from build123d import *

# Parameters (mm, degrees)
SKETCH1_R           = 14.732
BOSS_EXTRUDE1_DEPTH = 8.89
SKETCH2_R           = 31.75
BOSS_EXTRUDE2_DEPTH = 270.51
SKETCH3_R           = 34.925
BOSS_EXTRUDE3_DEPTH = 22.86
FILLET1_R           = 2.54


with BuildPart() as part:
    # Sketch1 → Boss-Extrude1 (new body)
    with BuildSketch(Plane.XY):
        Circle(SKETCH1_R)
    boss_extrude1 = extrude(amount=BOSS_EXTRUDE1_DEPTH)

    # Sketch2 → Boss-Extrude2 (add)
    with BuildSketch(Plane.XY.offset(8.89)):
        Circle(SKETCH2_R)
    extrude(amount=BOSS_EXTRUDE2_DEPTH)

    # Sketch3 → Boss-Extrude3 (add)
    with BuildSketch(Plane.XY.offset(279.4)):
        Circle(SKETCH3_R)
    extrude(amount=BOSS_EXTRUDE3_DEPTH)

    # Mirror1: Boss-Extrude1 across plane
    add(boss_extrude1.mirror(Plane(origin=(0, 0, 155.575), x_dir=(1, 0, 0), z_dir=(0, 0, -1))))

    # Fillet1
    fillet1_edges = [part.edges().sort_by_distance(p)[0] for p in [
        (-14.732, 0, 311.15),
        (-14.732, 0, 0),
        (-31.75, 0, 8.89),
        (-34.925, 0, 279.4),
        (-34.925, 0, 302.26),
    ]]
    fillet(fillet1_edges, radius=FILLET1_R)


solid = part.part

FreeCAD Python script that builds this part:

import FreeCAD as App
import Part
import Sketcher
Q = App.Units.Quantity


def edges_at(feature, points):
    """Names of the edges that pass closest to the given points."""
    edges = feature.Shape.Edges
    near = lambda p: min(range(len(edges)), key=lambda i: edges[i].distToShape(Part.Vertex(*p))[0])
    return sorted({f"Edge{near(p) + 1}" for p in points})

doc = App.newDocument("Part")
params = doc.addObject("Spreadsheet::Sheet", "Params")
for row, (alias, value) in enumerate([
    ("sketch1_diameter", "1.16 in"),
    ("pad1_length", "0.35 in"),
    ("sketch2_diameter", "2.5 in"),
    ("pad2_length", "10.65 in"),
    ("sketch3_diameter", "2.75 in"),
    ("pad3_length", "0.9 in"),
    ("fillet_radius", "0.1 in"),
], start=1):
    params.set(f"A{row}", alias)
    params.set(f"B{row}", "=" + value)
    params.setAlias(f"B{row}", alias)

body = doc.addObject("PartDesign::Body", "Body")

# Sketch on XY plane
sketch1 = body.newObject("Sketcher::SketchObject", "Sketch")
sketch1.AttachmentSupport = (doc.getObject("XY_Plane"), [""])
sketch1.MapMode = "FlatFace"
sketch1.addGeometry(Part.Circle(App.Vector(0, 0, 0), App.Vector(0, 0, 1), 15), False)
sketch1.addConstraint([
    Sketcher.Constraint("Coincident", 0, 3, -1, 1),
    Sketcher.Constraint("Diameter", 0, Q("1.16 in")),
])
sketch1.setExpression("Constraints[1]", "Params.sketch1_diameter")
pad1 = body.newObject("PartDesign::Pad", "Pad")
pad1.Profile = sketch1
pad1.setExpression("Length", "Params.pad1_length")

# Sketch on XY plane
sketch2 = body.newObject("Sketcher::SketchObject", "Sketch001")
sketch2.AttachmentSupport = (doc.getObject("XY_Plane"), [""])
sketch2.MapMode = "FlatFace"
sketch2.AttachmentOffset = App.Placement(App.Vector(0, 0, 0.35 * 25.4), App.Rotation())
sketch2.addGeometry(Part.Circle(App.Vector(0, 0, 0), App.Vector(0, 0, 1), 32), False)
sketch2.addConstraint([
    Sketcher.Constraint("Coincident", 0, 3, -1, 1),
    Sketcher.Constraint("Diameter", 0, Q("2.5 in")),
])
sketch2.setExpression("Constraints[1]", "Params.sketch2_diameter")
pad2 = body.newObject("PartDesign::Pad", "Pad001")
pad2.Profile = sketch2
pad2.setExpression("Length", "Params.pad2_length")

# Sketch on XY plane
sketch3 = body.newObject("Sketcher::SketchObject", "Sketch002")
sketch3.AttachmentSupport = (doc.getObject("XY_Plane"), [""])
sketch3.MapMode = "FlatFace"
sketch3.AttachmentOffset = App.Placement(App.Vector(0, 0, 11 * 25.4), App.Rotation())
sketch3.addGeometry(Part.Circle(App.Vector(0, 0, 0), App.Vector(0, 0, 1), 35), False)
sketch3.addConstraint([
    Sketcher.Constraint("Coincident", 0, 3, -1, 1),
    Sketcher.Constraint("Diameter", 0, Q("2.75 in")),
])
sketch3.setExpression("Constraints[1]", "Params.sketch3_diameter")
pad3 = body.newObject("PartDesign::Pad", "Pad002")
pad3.Profile = sketch3
pad3.setExpression("Length", "Params.pad3_length")
doc.recompute()

datumplane = body.newObject("PartDesign::Plane", "DatumPlane")
datumplane.AttachmentSupport = (doc.getObject("XY_Plane"), [""])
datumplane.MapMode = "FlatFace"
datumplane.AttachmentOffset = App.Placement(App.Vector(0, 0, 6.125 * 25.4), App.Rotation())
mirrored = body.newObject("PartDesign::Mirrored", "Mirrored")
mirrored.Originals = [pad1]
mirrored.MirrorPlane = (datumplane, [""])
body.Tip = mirrored
doc.recompute()

fillet = body.newObject("PartDesign::Fillet", "Fillet")
fillet.Base = (mirrored, edges_at(mirrored, [
    (-14.732, 0, 311.15),
    (-14.732, 0, 0),
    (-31.75, 0, 8.89),
    (-34.925, 0, 279.4),
    (-34.925, 0, 302.26),
]))
fillet.setExpression("Radius", "Params.fillet_radius")

doc.recompute()
